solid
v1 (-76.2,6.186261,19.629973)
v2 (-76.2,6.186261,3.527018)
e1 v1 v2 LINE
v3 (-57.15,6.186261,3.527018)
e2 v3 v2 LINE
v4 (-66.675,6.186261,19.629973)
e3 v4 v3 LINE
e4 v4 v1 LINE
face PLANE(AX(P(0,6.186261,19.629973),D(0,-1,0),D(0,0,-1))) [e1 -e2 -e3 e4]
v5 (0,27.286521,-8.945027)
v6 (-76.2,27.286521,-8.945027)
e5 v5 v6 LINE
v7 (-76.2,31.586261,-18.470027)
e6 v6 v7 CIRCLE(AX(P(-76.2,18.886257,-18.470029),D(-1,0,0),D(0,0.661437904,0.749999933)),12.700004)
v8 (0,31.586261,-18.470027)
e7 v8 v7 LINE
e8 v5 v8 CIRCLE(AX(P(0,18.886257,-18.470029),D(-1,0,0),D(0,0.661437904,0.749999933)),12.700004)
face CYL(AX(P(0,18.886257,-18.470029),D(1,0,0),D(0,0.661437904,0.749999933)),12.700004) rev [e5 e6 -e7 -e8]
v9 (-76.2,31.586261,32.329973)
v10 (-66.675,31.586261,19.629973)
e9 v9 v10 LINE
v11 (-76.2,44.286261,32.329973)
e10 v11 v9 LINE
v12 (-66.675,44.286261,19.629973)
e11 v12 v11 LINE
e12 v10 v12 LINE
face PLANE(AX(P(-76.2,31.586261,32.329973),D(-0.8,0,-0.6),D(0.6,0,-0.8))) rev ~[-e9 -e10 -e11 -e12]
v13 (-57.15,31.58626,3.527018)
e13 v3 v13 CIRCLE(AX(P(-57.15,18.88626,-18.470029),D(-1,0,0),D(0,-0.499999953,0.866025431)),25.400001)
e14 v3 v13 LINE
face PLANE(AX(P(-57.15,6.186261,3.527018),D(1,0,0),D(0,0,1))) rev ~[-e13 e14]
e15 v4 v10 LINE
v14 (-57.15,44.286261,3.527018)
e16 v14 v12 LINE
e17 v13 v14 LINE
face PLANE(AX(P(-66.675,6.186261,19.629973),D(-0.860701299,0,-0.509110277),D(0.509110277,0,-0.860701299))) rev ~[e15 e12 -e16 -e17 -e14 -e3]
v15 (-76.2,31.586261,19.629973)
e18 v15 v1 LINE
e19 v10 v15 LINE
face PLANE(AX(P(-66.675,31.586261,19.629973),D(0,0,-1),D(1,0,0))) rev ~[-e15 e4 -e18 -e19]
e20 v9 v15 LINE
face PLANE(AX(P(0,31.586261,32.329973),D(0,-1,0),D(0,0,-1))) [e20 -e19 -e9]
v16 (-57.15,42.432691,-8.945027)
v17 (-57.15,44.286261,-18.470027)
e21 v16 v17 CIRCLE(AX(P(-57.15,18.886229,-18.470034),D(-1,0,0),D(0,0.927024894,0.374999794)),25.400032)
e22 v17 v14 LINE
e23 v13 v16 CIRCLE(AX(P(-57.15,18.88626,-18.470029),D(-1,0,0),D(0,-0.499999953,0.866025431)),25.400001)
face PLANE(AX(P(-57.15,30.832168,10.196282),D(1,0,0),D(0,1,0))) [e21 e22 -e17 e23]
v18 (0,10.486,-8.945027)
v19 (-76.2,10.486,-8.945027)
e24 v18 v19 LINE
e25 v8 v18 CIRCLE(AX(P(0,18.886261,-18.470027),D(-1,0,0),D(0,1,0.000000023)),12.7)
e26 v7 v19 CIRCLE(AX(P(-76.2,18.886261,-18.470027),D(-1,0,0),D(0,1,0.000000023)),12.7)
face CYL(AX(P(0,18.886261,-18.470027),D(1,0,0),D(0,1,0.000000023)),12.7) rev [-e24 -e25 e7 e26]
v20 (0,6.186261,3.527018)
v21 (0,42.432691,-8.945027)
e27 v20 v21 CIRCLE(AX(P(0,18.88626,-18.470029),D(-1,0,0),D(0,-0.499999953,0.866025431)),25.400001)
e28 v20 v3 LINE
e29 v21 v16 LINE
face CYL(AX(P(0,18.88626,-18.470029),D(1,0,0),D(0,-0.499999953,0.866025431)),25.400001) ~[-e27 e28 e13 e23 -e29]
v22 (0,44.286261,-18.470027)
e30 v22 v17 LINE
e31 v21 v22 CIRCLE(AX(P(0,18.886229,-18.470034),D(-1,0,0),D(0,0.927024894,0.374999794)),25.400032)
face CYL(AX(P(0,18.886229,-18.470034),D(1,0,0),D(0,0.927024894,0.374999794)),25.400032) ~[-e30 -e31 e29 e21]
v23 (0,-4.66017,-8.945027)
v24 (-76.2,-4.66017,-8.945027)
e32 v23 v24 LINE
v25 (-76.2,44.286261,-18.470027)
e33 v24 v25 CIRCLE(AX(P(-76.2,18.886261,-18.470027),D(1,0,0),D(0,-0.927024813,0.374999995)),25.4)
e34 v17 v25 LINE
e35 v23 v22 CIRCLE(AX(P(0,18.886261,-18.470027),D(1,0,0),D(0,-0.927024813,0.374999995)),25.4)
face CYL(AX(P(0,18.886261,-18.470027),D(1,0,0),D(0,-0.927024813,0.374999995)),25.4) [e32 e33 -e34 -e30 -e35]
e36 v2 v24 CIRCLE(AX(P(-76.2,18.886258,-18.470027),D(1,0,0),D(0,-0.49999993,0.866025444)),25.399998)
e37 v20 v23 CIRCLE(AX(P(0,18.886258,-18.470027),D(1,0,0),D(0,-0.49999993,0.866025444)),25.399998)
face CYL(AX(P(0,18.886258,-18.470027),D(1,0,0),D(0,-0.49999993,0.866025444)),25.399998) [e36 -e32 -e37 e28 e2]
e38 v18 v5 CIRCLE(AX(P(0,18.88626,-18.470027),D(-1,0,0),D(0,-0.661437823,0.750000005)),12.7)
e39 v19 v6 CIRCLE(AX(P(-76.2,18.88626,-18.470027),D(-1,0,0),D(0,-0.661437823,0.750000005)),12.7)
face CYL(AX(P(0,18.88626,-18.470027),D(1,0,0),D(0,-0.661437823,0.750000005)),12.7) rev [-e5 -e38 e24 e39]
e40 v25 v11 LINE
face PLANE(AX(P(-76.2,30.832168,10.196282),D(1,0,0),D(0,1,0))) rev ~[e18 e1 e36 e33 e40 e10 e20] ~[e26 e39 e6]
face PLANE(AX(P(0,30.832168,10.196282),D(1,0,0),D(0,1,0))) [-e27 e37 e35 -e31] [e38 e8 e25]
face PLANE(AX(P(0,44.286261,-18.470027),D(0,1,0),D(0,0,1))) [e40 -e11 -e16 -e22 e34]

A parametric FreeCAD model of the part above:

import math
import FreeCAD as App
import Part
import Sketcher
from FreeCAD import Vector
Q = App.Units.Quantity

doc = App.newDocument("Part")
body = doc.addObject("PartDesign::Body", "Body")

# Sketch on YZ plane
sketch1 = body.newObject("Sketcher::SketchObject", "Sketch")
sketch1.AttachmentSupport = (doc.getObject("YZ_Plane"), [""])
sketch1.MapMode = "FlatFace"
sketch1.addGeometry(Part.ArcOfCircle(Part.Circle(Vector(18.88626, -18.470029, 0), Vector(0, 0, 1), 25.400001), math.radians(22.024316), math.radians(119.999997)), False)
sketch1.addGeometry(Part.ArcOfCircle(Part.Circle(Vector(18.886258, -18.470027, 0), Vector(0, 0, 1), 25.399998), math.radians(119.999995), math.radians(157.975686)), False)
sketch1.addGeometry(Part.ArcOfCircle(Part.Circle(Vector(18.886261, -18.470027, 0), Vector(0, 0, 1), 25.4), math.radians(157.975687), math.radians(360)), False)
sketch1.addGeometry(Part.ArcOfCircle(Part.Circle(Vector(18.886229, -18.470034, 0), Vector(0, 0, 1), 25.400032), math.radians(0.000015), math.radians(22.0243)), False)
sketch1.addGeometry(Part.ArcOfCircle(Part.Circle(Vector(18.88626, -18.470027, 0), Vector(0, 0, 1), 12.7), math.radians(48.590378), math.radians(131.409622)), False)
sketch1.addGeometry(Part.ArcOfCircle(Part.Circle(Vector(18.886257, -18.470029, 0), Vector(0, 0, 1), 12.700004), math.radians(0.00001), math.radians(48.590372)), False)
sketch1.addGeometry(Part.ArcOfCircle(Part.Circle(Vector(18.886261, -18.470027, 0), Vector(0, 0, 1), 12.7), math.radians(131.409622), math.radians(360.000001)), False)
sketch1.addConstraint(Sketcher.Constraint("Coincident", 0, 2, 1, 1))
sketch1.addConstraint(Sketcher.Constraint("Coincident", 1, 2, 2, 1))
sketch1.addConstraint(Sketcher.Constraint("Coincident", 2, 2, 3, 1))
sketch1.addConstraint(Sketcher.Constraint("Coincident", 3, 2, 0, 1))
sketch1.addConstraint(Sketcher.Constraint("Coincident", 4, 1, 5, 2))
sketch1.addConstraint(Sketcher.Constraint("Coincident", 5, 1, 6, 2))
sketch1.addConstraint(Sketcher.Constraint("Coincident", 6, 1, 4, 2))
sketch1.addConstraint(Sketcher.Constraint("Coincident", 1, 3, 0, 3))
sketch1.addConstraint(Sketcher.Constraint("Coincident", 2, 3, 0, 3))
sketch1.addConstraint(Sketcher.Constraint("Coincident", 4, 3, 0, 3))
sketch1.addConstraint(Sketcher.Constraint("Coincident", 5, 3, 0, 3))
sketch1.addConstraint(Sketcher.Constraint("Radius", 0, Q("1 in")))
sketch1.addConstraint(Sketcher.Constraint("Radius", 4, Q("0.5 in")))
sketch1.addConstraint(Sketcher.Constraint("Radius", 6, Q("0.5 in")))
sketch1.addConstraint(Sketcher.Constraint("DistanceX", 0, 2, 1, 3, Q("0.4999999 in")))
sketch1.addConstraint(Sketcher.Constraint("Radius", 3, 25.400032))
sketch1.addConstraint(Sketcher.Constraint("DistanceY", 5, 3, 1, 2, Q("0.3750001 in")))
sketch1.addConstraint(Sketcher.Constraint("DistanceY", 2, 2, 3, 2, Q("0.375 in")))
sketch1.addConstraint(Sketcher.Constraint("DistanceY", 2, 3, 3, 2, Q("0.375 in")))
sketch1.addConstraint(Sketcher.Constraint("DistanceY", 2, 3, 4, 1, Q("0.375 in")))
sketch1.addConstraint(Sketcher.Constraint("DistanceY", 5, 1, 4, 1, Q("0.375 in")))
sketch1.addConstraint(Sketcher.Constraint("DistanceY", 1, 3, 6, 1, Q("0.375 in")))
sketch1.addConstraint(Sketcher.Constraint("DistanceX", -1, 1, 6, 1, 10.486))
sketch1.addConstraint(Sketcher.Constraint("DistanceY", 0, 3, -1, 1, 18.470029))
pad1 = body.newObject("PartDesign::Pad", "Pad")
pad1.Profile = sketch1
pad1.Length = Q("3 in")
pad1.Reversed = True

# Sketch on YZ plane
sketch2 = body.newObject("Sketcher::SketchObject", "Sketch001")
sketch2.AttachmentSupport = (doc.getObject("YZ_Plane"), [""])
sketch2.MapMode = "FlatFace"
sketch2.addGeometry(Part.ArcOfCircle(Part.Circle(Vector(18.886229, -18.470034, 0), Vector(0, 0, 1), 25.400032), math.radians(0.000015), math.radians(22.0243)), False)
sketch2.addGeometry(Part.LineSegment(Vector(44.286261, -18.470027, 0), Vector(44.286261, 32.329973, 0)), False)
sketch2.addGeometry(Part.LineSegment(Vector(44.286261, 32.329973, 0), Vector(31.586261, 32.329973, 0)), False)
sketch2.addGeometry(Part.LineSegment(Vector(31.586261, 32.329973, 0), Vector(31.586261, 19.629973, 0)), False)
sketch2.addGeometry(Part.LineSegment(Vector(31.586261, 19.629973, 0), Vector(6.186261, 19.629973, 0)), False)
sketch2.addGeometry(Part.LineSegment(Vector(6.186261, 19.629973, 0), Vector(6.186261, 3.527018, 0)), False)
sketch2.addGeometry(Part.ArcOfCircle(Part.Circle(Vector(18.88626, -18.470029, 0), Vector(0, 0, 1), 25.400001), math.radians(22.024316), math.radians(119.999997)), False)
sketch2.addConstraint(Sketcher.Constraint("Coincident", 0, 1, 1, 1))
sketch2.addConstraint(Sketcher.Constraint("Coincident", 1, 2, 2, 1))
sketch2.addConstraint(Sketcher.Constraint("Coincident", 2, 2, 3, 1))
sketch2.addConstraint(Sketcher.Constraint("Coincident", 3, 2, 4, 1))
sketch2.addConstraint(Sketcher.Constraint("Coincident", 4, 2, 5, 1))
sketch2.addConstraint(Sketcher.Constraint("Coincident", 5, 2, 6, 2))
sketch2.addConstraint(Sketcher.Constraint("Coincident", 6, 1, 0, 2))
sketch2.addConstraint(Sketcher.Constraint("Vertical", 1))
sketch2.addConstraint(Sketcher.Constraint("Horizontal", 2))
sketch2.addConstraint(Sketcher.Constraint("Vertical", 3))
sketch2.addConstraint(Sketcher.Constraint("Horizontal", 4))
sketch2.addConstraint(Sketcher.Constraint("Vertical", 5))
sketch2.addConstraint(Sketcher.Constraint("Radius", 6, Q("1 in")))
sketch2.addConstraint(Sketcher.Constraint("DistanceX", 4, 2, 4, 1, Q("1 in")))
sketch2.addConstraint(Sketcher.Constraint("DistanceY", 1, 1, 1, 2, Q("2 in")))
sketch2.addConstraint(Sketcher.Constraint("DistanceX", 2, 2, 2, 1, Q("0.5 in")))
sketch2.addConstraint(Sketcher.Constraint("DistanceY", 3, 2, 3, 1, Q("0.5 in")))
sketch2.addConstraint(Sketcher.Constraint("DistanceX", 6, 3, 0, 1, Q("1 in")))
sketch2.addConstraint(Sketcher.Constraint("DistanceY", 6, 3, 1, 2, Q("2.0000001 in")))
sketch2.addConstraint(Sketcher.Constraint("Radius", 0, 25.400032))
sketch2.addConstraint(Sketcher.Constraint("DistanceY", 0, 1, 6, 1, Q("0.375 in")))
sketch2.addConstraint(Sketcher.Constraint("DistanceX", -1, 1, 0, 3, 18.886229))
sketch2.addConstraint(Sketcher.Constraint("DistanceY", 6, 3, -1, 1, 18.470029))
pad2 = body.newObject("PartDesign::Pad", "Pad001")
pad2.Profile = sketch2
pad2.Length = Q("3 in")
pad2.Reversed = True

# Sketch on YZ plane
sketch3 = body.newObject("Sketcher::SketchObject", "Sketch002")
sketch3.AttachmentSupport = (doc.getObject("YZ_Plane"), [""])
sketch3.MapMode = "FlatFace"
sketch3.addGeometry(Part.ArcOfCircle(Part.Circle(Vector(18.886229, -18.470034, 0), Vector(0, 0, 1), 25.400032), math.radians(0.000015), math.radians(22.0243)), False)
sketch3.addGeometry(Part.LineSegment(Vector(44.286261, -18.470027, 0), Vector(44.286261, 32.329973, 0)), False)
sketch3.addGeometry(Part.LineSegment(Vector(44.286261, 32.329973, 0), Vector(31.586261, 32.329973, 0)), False)
sketch3.addGeometry(Part.LineSegment(Vector(31.586261, 32.329973, 0), Vector(31.586261, 19.629973, 0)), False)
sketch3.addGeometry(Part.LineSegment(Vector(31.586261, 19.629973, 0), Vector(6.186261, 19.629973, 0)), False)
sketch3.addGeometry(Part.LineSegment(Vector(6.186261, 19.629973, 0), Vector(6.186261, 3.527018, 0)), False)
sketch3.addGeometry(Part.ArcOfCircle(Part.Circle(Vector(18.88626, -18.470029, 0), Vector(0, 0, 1), 25.400001), math.radians(22.024316), math.radians(119.999997)), False)
sketch3.addConstraint(Sketcher.Constraint("Coincident", 0, 1, 1, 1))
sketch3.addConstraint(Sketcher.Constraint("Coincident", 1, 2, 2, 1))
sketch3.addConstraint(Sketcher.Constraint("Coincident", 2, 2, 3, 1))
sketch3.addConstraint(Sketcher.Constraint("Coincident", 3, 2, 4, 1))
sketch3.addConstraint(Sketcher.Constraint("Coincident", 4, 2, 5, 1))
sketch3.addConstraint(Sketcher.Constraint("Coincident", 5, 2, 6, 2))
sketch3.addConstraint(Sketcher.Constraint("Coincident", 6, 1, 0, 2))
sketch3.addConstraint(Sketcher.Constraint("Vertical", 1))
sketch3.addConstraint(Sketcher.Constraint("Horizontal", 2))
sketch3.addConstraint(Sketcher.Constraint("Vertical", 3))
sketch3.addConstraint(Sketcher.Constraint("Horizontal", 4))
sketch3.addConstraint(Sketcher.Constraint("Vertical", 5))
sketch3.addConstraint(Sketcher.Constraint("Radius", 6, Q("1 in")))
sketch3.addConstraint(Sketcher.Constraint("DistanceX", 4, 2, 4, 1, Q("1 in")))
sketch3.addConstraint(Sketcher.Constraint("DistanceY", 1, 1, 1, 2, Q("2 in")))
sketch3.addConstraint(Sketcher.Constraint("DistanceX", 2, 2, 2, 1, Q("0.5 in")))
sketch3.addConstraint(Sketcher.Constraint("DistanceY", 3, 2, 3, 1, Q("0.5 in")))
sketch3.addConstraint(Sketcher.Constraint("DistanceX", 6, 3, 0, 1, Q("1 in")))
sketch3.addConstraint(Sketcher.Constraint("DistanceY", 6, 3, 1, 2, Q("2.0000001 in")))
sketch3.addConstraint(Sketcher.Constraint("Radius", 0, 25.400032))
sketch3.addConstraint(Sketcher.Constraint("DistanceY", 0, 1, 6, 1, Q("0.375 in")))
sketch3.addConstraint(Sketcher.Constraint("DistanceX", -1, 1, 0, 3, 18.886229))
sketch3.addConstraint(Sketcher.Constraint("DistanceY", 6, 3, -1, 1, 18.470029))
pocket1 = body.newObject("PartDesign::Pocket", "Pocket")
pocket1.Profile = sketch3
pocket1.Length = Q("2.25 in")

# Sketch on XZ plane
sketch4 = body.newObject("Sketcher::SketchObject", "Sketch003")
sketch4.AttachmentSupport = (doc.getObject("XZ_Plane"), [""])
sketch4.MapMode = "FlatFace"
sketch4.AttachmentOffset = App.Placement(Vector(0, 0, -31.586261), App.Rotation())
sketch4.addGeometry(Part.LineSegment(Vector(-76, 32, 0), Vector(-67, 20, 0)), False)
sketch4.addGeometry(Part.LineSegment(Vector(-67, 20, 0), Vector(-57, 20, 0)), False)
sketch4.addGeometry(Part.LineSegment(Vector(-57, 20, 0), Vector(-57, 32, 0)), False)
sketch4.addGeometry(Part.LineSegment(Vector(-57, 32, 0), Vector(-76, 32, 0)), False)
sketch4.addConstraint(Sketcher.Constraint("Coincident", 0, 2, 1, 1))
sketch4.addConstraint(Sketcher.Constraint("Coincident", 1, 2, 2, 1))
sketch4.addConstraint(Sketcher.Constraint("Coincident", 2, 2, 3, 1))
sketch4.addConstraint(Sketcher.Constraint("Coincident", 3, 2, 0, 1))
sketch4.addConstraint(Sketcher.Constraint("Horizontal", 1))
sketch4.addConstraint(Sketcher.Constraint("Vertical", 2))
sketch4.addConstraint(Sketcher.Constraint("Horizontal", 3))
sketch4.addConstraint(Sketcher.Constraint("DistanceY", 2, 1, 2, 2, Q("0.5 in")))
sketch4.addConstraint(Sketcher.Constraint("DistanceX", 3, 2, -1, 1, Q("3 in")))
sketch4.addConstraint(Sketcher.Constraint("DistanceX", 3, 2, 3, 1, Q("0.75 in")))
sketch4.addConstraint(Sketcher.Constraint("DistanceX", 1, 1, 1, 2, Q("0.375 in")))
sketch4.addConstraint(Sketcher.Constraint("DistanceY", -1, 1, 0, 2, 19.629973))
pocket2 = body.newObject("PartDesign::Pocket", "Pocket001")
pocket2.Profile = sketch4
pocket2.Length = Q("1 in")

# Sketch on XZ plane
sketch5 = body.newObject("Sketcher::SketchObject", "Sketch004")
sketch5.AttachmentSupport = (doc.getObject("XZ_Plane"), [""])
sketch5.MapMode = "FlatFace"
sketch5.AttachmentOffset = App.Placement(Vector(0, 0, -6.186261), App.Rotation())
sketch5.addGeometry(Part.LineSegment(Vector(-57, 20, 0), Vector(-67, 20, 0)), False)
sketch5.addGeometry(Part.LineSegment(Vector(-67, 20, 0), Vector(-57, 4, 0)), False)
sketch5.addGeometry(Part.LineSegment(Vector(-57, 4, 0), Vector(-57, 20, 0)), False)
sketch5.addConstraint(Sketcher.Constraint("Coincident", 0, 2, 1, 1))
sketch5.addConstraint(Sketcher.Constraint("Coincident", 1, 2, 2, 1))
sketch5.addConstraint(Sketcher.Constraint("Coincident", 2, 2, 0, 1))
sketch5.addConstraint(Sketcher.Constraint("Horizontal", 0))
sketch5.addConstraint(Sketcher.Constraint("Vertical", 2))
sketch5.addConstraint(Sketcher.Constraint("DistanceX", 0, 2, 0, 1, Q("0.375 in")))
sketch5.addConstraint(Sketcher.Constraint("DistanceX", 1, 2, -1, 1, Q("2.25 in")))
sketch5.addConstraint(Sketcher.Constraint("Distance", 1, 18.70911))
sketch5.addConstraint(Sketcher.Constraint("DistanceY", -1, 1, 1, 2, 3.527018))
pocket3 = body.newObject("PartDesign::Pocket", "Pocket002")
pocket3.Profile = sketch5
pocket3.Length = Q("3 in")

doc.recompute()
